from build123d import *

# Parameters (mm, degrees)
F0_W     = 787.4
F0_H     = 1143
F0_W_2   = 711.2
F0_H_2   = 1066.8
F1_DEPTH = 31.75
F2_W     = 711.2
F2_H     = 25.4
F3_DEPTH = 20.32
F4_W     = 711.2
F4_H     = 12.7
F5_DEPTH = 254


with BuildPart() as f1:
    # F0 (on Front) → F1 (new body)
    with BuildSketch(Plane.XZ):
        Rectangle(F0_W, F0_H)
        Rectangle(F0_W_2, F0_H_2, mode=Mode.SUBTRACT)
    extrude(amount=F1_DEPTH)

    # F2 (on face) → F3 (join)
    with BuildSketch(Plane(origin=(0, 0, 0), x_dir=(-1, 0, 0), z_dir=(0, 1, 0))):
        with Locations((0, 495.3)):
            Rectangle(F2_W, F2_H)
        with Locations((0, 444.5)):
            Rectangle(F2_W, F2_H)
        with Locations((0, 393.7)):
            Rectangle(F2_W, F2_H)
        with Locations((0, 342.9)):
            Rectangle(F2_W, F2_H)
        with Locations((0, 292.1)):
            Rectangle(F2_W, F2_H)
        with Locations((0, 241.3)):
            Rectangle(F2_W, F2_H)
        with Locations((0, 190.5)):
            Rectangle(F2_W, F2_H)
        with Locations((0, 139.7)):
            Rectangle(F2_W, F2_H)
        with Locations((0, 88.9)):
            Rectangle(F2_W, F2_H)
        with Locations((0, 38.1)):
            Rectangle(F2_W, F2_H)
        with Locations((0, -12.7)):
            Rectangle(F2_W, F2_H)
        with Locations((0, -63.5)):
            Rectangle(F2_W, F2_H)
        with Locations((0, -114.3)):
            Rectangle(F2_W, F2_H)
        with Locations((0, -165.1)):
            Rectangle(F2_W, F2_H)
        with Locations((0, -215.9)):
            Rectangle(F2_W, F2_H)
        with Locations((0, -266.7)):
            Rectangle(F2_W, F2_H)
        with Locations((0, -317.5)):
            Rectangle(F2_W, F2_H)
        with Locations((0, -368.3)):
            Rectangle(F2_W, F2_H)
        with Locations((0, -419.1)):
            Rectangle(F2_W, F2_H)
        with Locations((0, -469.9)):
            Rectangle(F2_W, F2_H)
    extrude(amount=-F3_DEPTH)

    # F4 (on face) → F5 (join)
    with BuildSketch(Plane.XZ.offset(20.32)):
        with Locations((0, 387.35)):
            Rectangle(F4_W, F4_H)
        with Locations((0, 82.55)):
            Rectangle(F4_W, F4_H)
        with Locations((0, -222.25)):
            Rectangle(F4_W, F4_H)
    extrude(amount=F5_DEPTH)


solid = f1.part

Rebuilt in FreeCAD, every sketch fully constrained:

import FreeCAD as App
import Part
import Sketcher
Q = App.Units.Quantity

doc = App.newDocument("Part")
body = doc.addObject("PartDesign::Body", "Body")

sketch1 = body.newObject("Sketcher::SketchObject", "Sketch")
sketch1.AttachmentSupport = (doc.getObject("XZ_Plane"), [""])
sketch1.MapMode = "FlatFace"
sketch1.addGeometry(Part.LineSegment(App.Vector(-393.7, 571.5, 0), App.Vector(-393.7, -571.5, 0)), False)
sketch1.addGeometry(Part.LineSegment(App.Vector(-393.7, -571.5, 0), App.Vector(393.7, -571.5, 0)), False)
sketch1.addGeometry(Part.LineSegment(App.Vector(393.7, -571.5, 0), App.Vector(393.7, 571.5, 0)), False)
sketch1.addGeometry(Part.LineSegment(App.Vector(393.7, 571.5, 0), App.Vector(-393.7, 571.5, 0)), False)
sketch1.addGeometry(Part.LineSegment(App.Vector(355.6, -533.4, 0), App.Vector(-355.6, -533.4, 0)), False)
sketch1.addGeometry(Part.LineSegment(App.Vector(-355.6, -533.4, 0), App.Vector(-355.6, 533.4, 0)), False)
sketch1.addGeometry(Part.LineSegment(App.Vector(-355.6, 533.4, 0), App.Vector(355.6, 533.4, 0)), False)
sketch1.addGeometry(Part.LineSegment(App.Vector(355.6, 533.4, 0), App.Vector(355.6, -533.4, 0)), False)
sketch1.addConstraint(Sketcher.Constraint("Coincident", 0, 2, 1, 1))
sketch1.addConstraint(Sketcher.Constraint("Coincident", 1, 2, 2, 1))
sketch1.addConstraint(Sketcher.Constraint("Coincident", 2, 2, 3, 1))
sketch1.addConstraint(Sketcher.Constraint("Coincident", 3, 2, 0, 1))
sketch1.addConstraint(Sketcher.Constraint("Coincident", 4, 2, 5, 1))
sketch1.addConstraint(Sketcher.Constraint("Coincident", 5, 2, 6, 1))
sketch1.addConstraint(Sketcher.Constraint("Coincident", 6, 2, 7, 1))
sketch1.addConstraint(Sketcher.Constraint("Coincident", 7, 2, 4, 1))
sketch1.addConstraint(Sketcher.Constraint("Vertical", 0))
sketch1.addConstraint(Sketcher.Constraint("Horizontal", 1))
sketch1.addConstraint(Sketcher.Constraint("Vertical", 2))
sketch1.addConstraint(Sketcher.Constraint("Horizontal", 3))
sketch1.addConstraint(Sketcher.Constraint("Horizontal", 4))
sketch1.addConstraint(Sketcher.Constraint("Vertical", 5))
sketch1.addConstraint(Sketcher.Constraint("Horizontal", 6))
sketch1.addConstraint(Sketcher.Constraint("Vertical", 7))
sketch1.addConstraint(Sketcher.Constraint("Symmetric", 0, 2, 2, 2, -1, 1))
sketch1.addConstraint(Sketcher.Constraint("Symmetric", 4, 2, 6, 2, -1, 1))
sketch1.addConstraint(Sketcher.Constraint("DistanceX", 1, 1, 1, 2, Q("31 in")))
sketch1.addConstraint(Sketcher.Constraint("DistanceX", 4, 2, 4, 1, Q("28 in")))
sketch1.addConstraint(Sketcher.Constraint("DistanceY", 0, 2, 0, 1, Q("45 in")))
sketch1.addConstraint(Sketcher.Constraint("DistanceY", 5, 1, 5, 2, Q("42 in")))
pad1 = body.newObject("PartDesign::Pad", "Pad")
pad1.Profile = sketch1
pad1.Length = Q("1.25 in")

sketch2 = body.newObject("Sketcher::SketchObject", "Sketch001")
sketch2.AttachmentSupport = (doc.getObject("XZ_Plane"), [""])
sketch2.MapMode = "FlatFace"
sketch2.addGeometry(Part.LineSegment(App.Vector(355.6, 508, 0), App.Vector(355.6, 482.6, 0)), False)
sketch2.addGeometry(Part.LineSegment(App.Vector(355.6, 482.6, 0), App.Vector(-355.6, 482.6, 0)), False)
sketch2.addGeometry(Part.LineSegment(App.Vector(-355.6, 482.6, 0), App.Vector(-355.6, 508, 0)), False)
sketch2.addGeometry(Part.LineSegment(App.Vector(-355.6, 508, 0), App.Vector(355.6, 508, 0)), False)
sketch2.addGeometry(Part.LineSegment(App.Vector(355.6, 457.2, 0), App.Vector(355.6, 431.8, 0)), False)
sketch2.addGeometry(Part.LineSegment(App.Vector(355.6, 431.8, 0), App.Vector(-355.6, 431.8, 0)), False)
sketch2.addGeometry(Part.LineSegment(App.Vector(-355.6, 431.8, 0), App.Vector(-355.6, 457.2, 0)), False)
sketch2.addGeometry(Part.LineSegment(App.Vector(-355.6, 457.2, 0), App.Vector(355.6, 457.2, 0)), False)
sketch2.addGeometry(Part.LineSegment(App.Vector(355.6, 406.4, 0), App.Vector(355.6, 381, 0)), False)
sketch2.addGeometry(Part.LineSegment(App.Vector(355.6, 381, 0), App.Vector(-355.6, 381, 0)), False)
sketch2.addGeometry(Part.LineSegment(App.Vector(-355.6, 381, 0), App.Vector(-355.6, 406.4, 0)), False)
sketch2.addGeometry(Part.LineSegment(App.Vector(-355.6, 406.4, 0), App.Vector(355.6, 406.4, 0)), False)
sketch2.addGeometry(Part.LineSegment(App.Vector(355.6, 355.6, 0), App.Vector(355.6, 330.2, 0)), False)
sketch2.addGeometry(Part.LineSegment(App.Vector(355.6, 330.2, 0), App.Vector(-355.6, 330.2, 0)), False)
sketch2.addGeometry(Part.LineSegment(App.Vector(-355.6, 330.2, 0), App.Vector(-355.6, 355.6, 0)), False)
sketch2.addGeometry(Part.LineSegment(App.Vector(-355.6, 355.6, 0), App.Vector(355.6, 355.6, 0)), False)
sketch2.addGeometry(Part.LineSegment(App.Vector(355.6, 304.8, 0), App.Vector(355.6, 279.4, 0)), False)
sketch2.addGeometry(Part.LineSegment(App.Vector(355.6, 279.4, 0), App.Vector(-355.6, 279.4, 0)), False)
sketch2.addGeometry(Part.LineSegment(App.Vector(-355.6, 279.4, 0), App.Vector(-355.6, 304.8, 0)), False)
sketch2.addGeometry(Part.LineSegment(App.Vector(-355.6, 304.8, 0), App.Vector(355.6, 304.8, 0)), False)
sketch2.addGeometry(Part.LineSegment(App.Vector(355.6, 254, 0), App.Vector(355.6, 228.6, 0)), False)
sketch2.addGeometry(Part.LineSegment(App.Vector(355.6, 228.6, 0), App.Vector(-355.6, 228.6, 0)), False)
sketch2.addGeometry(Part.LineSegment(App.Vector(-355.6, 228.6, 0), App.Vector(-355.6, 254, 0)), False)
sketch2.addGeometry(Part.LineSegment(App.Vector(-355.6, 254, 0), App.Vector(355.6, 254, 0)), False)
sketch2.addGeometry(Part.LineSegment(App.Vector(355.6, 203.2, 0), App.Vector(355.6, 177.8, 0)), False)
sketch2.addGeometry(Part.LineSegment(App.Vector(355.6, 177.8, 0), App.Vector(-355.6, 177.8, 0)), False)
sketch2.addGeometry(Part.LineSegment(App.Vector(-355.6, 177.8, 0), App.Vector(-355.6, 203.2, 0)), False)
sketch2.addGeometry(Part.LineSegment(App.Vector(-355.6, 203.2, 0), App.Vector(355.6, 203.2, 0)), False)
sketch2.addGeometry(Part.LineSegment(App.Vector(355.6, 152.4, 0), App.Vector(355.6, 127, 0)), False)
sketch2.addGeometry(Part.LineSegment(App.Vector(355.6, 127, 0), App.Vector(-355.6, 127, 0)), False)
sketch2.addGeometry(Part.LineSegment(App.Vector(-355.6, 127, 0), App.Vector(-355.6, 152.4, 0)), False)
sketch2.addGeometry(Part.LineSegment(App.Vector(-355.6, 152.4, 0), App.Vector(355.6, 152.4, 0)), False)
sketch2.addGeometry(Part.LineSegment(App.Vector(355.6, 101.6, 0), App.Vector(355.6, 76.2, 0)), False)
sketch2.addGeometry(Part.LineSegment(App.Vector(355.6, 76.2, 0), App.Vector(-355.6, 76.2, 0)), False)
sketch2.addGeometry(Part.LineSegment(App.Vector(-355.6, 76.2, 0), App.Vector(-355.6, 101.6, 0)), False)
sketch2.addGeometry(Part.LineSegment(App.Vector(-355.6, 101.6, 0), App.Vector(355.6, 101.6, 0)), False)
sketch2.addGeometry(Part.LineSegment(App.Vector(355.6, 50.8, 0), App.Vector(355.6, 25.4, 0)), False)
sketch2.addGeometry(Part.LineSegment(App.Vector(355.6, 25.4, 0), App.Vector(-355.6, 25.4, 0)), False)
sketch2.addGeometry(Part.LineSegment(App.Vector(-355.6, 25.4, 0), App.Vector(-355.6, 50.8, 0)), False)
sketch2.addGeometry(Part.LineSegment(App.Vector(-355.6, 50.8, 0), App.Vector(355.6, 50.8, 0)), False)
sketch2.addGeometry(Part.LineSegment(App.Vector(355.6, 0, 0), App.Vector(355.6, -25.4, 0)), False)
sketch2.addGeometry(Part.LineSegment(App.Vector(355.6, -25.4, 0), App.Vector(-355.6, -25.4, 0)), False)
sketch2.addGeometry(Part.LineSegment(App.Vector(-355.6, -25.4, 0), App.Vector(-355.6, 0, 0)), False)
sketch2.addGeometry(Part.LineSegment(App.Vector(-355.6, 0, 0), App.Vector(355.6, 0, 0)), False)
sketch2.addGeometry(Part.LineSegment(App.Vector(355.6, -50.8, 0), App.Vector(355.6, -76.2, 0)), False)
sketch2.addGeometry(Part.LineSegment(App.Vector(355.6, -76.2, 0), App.Vector(-355.6, -76.2, 0)), False)
sketch2.addGeometry(Part.LineSegment(App.Vector(-355.6, -76.2, 0), App.Vector(-355.6, -50.8, 0)), False)
sketch2.addGeometry(Part.LineSegment(App.Vector(-355.6, -50.8, 0), App.Vector(355.6, -50.8, 0)), False)
sketch2.addGeometry(Part.LineSegment(App.Vector(355.6, -101.6, 0), App.Vector(355.6, -127, 0)), False)
sketch2.addGeometry(Part.LineSegment(App.Vector(355.6, -127, 0), App.Vector(-355.6, -127, 0)), False)
sketch2.addGeometry(Part.LineSegment(App.Vector(-355.6, -127, 0), App.Vector(-355.6, -101.6, 0)), False)
sketch2.addGeometry(Part.LineSegment(App.Vector(-355.6, -101.6, 0), App.Vector(355.6, -101.6, 0)), False)
sketch2.addGeometry(Part.LineSegment(App.Vector(355.6, -152.4, 0), App.Vector(355.6, -177.8, 0)), False)
sketch2.addGeometry(Part.LineSegment(App.Vector(355.6, -177.8, 0), App.Vector(-355.6, -177.8, 0)), False)
sketch2.addGeometry(Part.LineSegment(App.Vector(-355.6, -177.8, 0), App.Vector(-355.6, -152.4, 0)), False)
sketch2.addGeometry(Part.LineSegment(App.Vector(-355.6, -152.4, 0), App.Vector(355.6, -152.4, 0)), False)
sketch2.addGeometry(Part.LineSegment(App.Vector(355.6, -203.2, 0), App.Vector(355.6, -228.6, 0)), False)
sketch2.addGeometry(Part.LineSegment(App.Vector(355.6, -228.6, 0), App.Vector(-355.6, -228.6, 0)), False)
sketch2.addGeometry(Part.LineSegment(App.Vector(-355.6, -228.6, 0), App.Vector(-355.6, -203.2, 0)), False)
sketch2.addGeometry(Part.LineSegment(App.Vector(-355.6, -203.2, 0), App.Vector(355.6, -203.2, 0)), False)
sketch2.addGeometry(Part.LineSegment(App.Vector(355.6, -254, 0), App.Vector(355.6, -279.4, 0)), False)
sketch2.addGeometry(Part.LineSegment(App.Vector(355.6, -279.4, 0), App.Vector(-355.6, -279.4, 0)), False)
sketch2.addGeometry(Part.LineSegment(App.Vector(-355.6, -279.4, 0), App.Vector(-355.6, -254, 0)), False)
sketch2.addGeometry(Part.LineSegment(App.Vector(-355.6, -254, 0), App.Vector(355.6, -254, 0)), False)
sketch2.addGeometry(Part.LineSegment(App.Vector(355.6, -304.8, 0), App.Vector(355.6, -330.2, 0)), False)
sketch2.addGeometry(Part.LineSegment(App.Vector(355.6, -330.2, 0), App.Vector(-355.6, -330.2, 0)), False)
sketch2.addGeometry(Part.LineSegment(App.Vector(-355.6, -330.2, 0), App.Vector(-355.6, -304.8, 0)), False)
sketch2.addGeometry(Part.LineSegment(App.Vector(-355.6, -304.8, 0), App.Vector(355.6, -304.8, 0)), False)
sketch2.addGeometry(Part.LineSegment(App.Vector(355.6, -355.6, 0), App.Vector(355.6, -381, 0)), False)
sketch2.addGeometry(Part.LineSegment(App.Vector(355.6, -381, 0), App.Vector(-355.6, -381, 0)), False)
sketch2.addGeometry(Part.LineSegment(App.Vector(-355.6, -381, 0), App.Vector(-355.6, -355.6, 0)), False)
sketch2.addGeometry(Part.LineSegment(App.Vector(-355.6, -355.6, 0), App.Vector(355.6, -355.6, 0)), False)
sketch2.addGeometry(Part.LineSegment(App.Vector(355.6, -406.4, 0), App.Vector(355.6, -431.8, 0)), False)
sketch2.addGeometry(Part.LineSegment(App.Vector(355.6, -431.8, 0), App.Vector(-355.6, -431.8, 0)), False)
sketch2.addGeometry(Part.LineSegment(App.Vector(-355.6, -431.8, 0), App.Vector(-355.6, -406.4, 0)), False)
sketch2.addGeometry(Part.LineSegment(App.Vector(-355.6, -406.4, 0), App.Vector(355.6, -406.4, 0)), False)
sketch2.addGeometry(Part.LineSegment(App.Vector(355.6, -457.2, 0), App.Vector(355.6, -482.6, 0)), False)
sketch2.addGeometry(Part.LineSegment(App.Vector(355.6, -482.6, 0), App.Vector(-355.6, -482.6, 0)), False)
sketch2.addGeometry(Part.LineSegment(App.Vector(-355.6, -482.6, 0), App.Vector(-355.6, -457.2, 0)), False)
sketch2.addGeometry(Part.LineSegment(App.Vector(-355.6, -457.2, 0), App.Vector(355.6, -457.2, 0)), False)
sketch2.addConstraint(Sketcher.Constraint("Coincident", 0, 2, 1, 1))
sketch2.addConstraint(Sketcher.Constraint("Coincident", 1, 2, 2, 1))
sketch2.addConstraint(Sketcher.Constraint("Coincident", 2, 2, 3, 1))
sketch2.addConstraint(Sketcher.Constraint("Coincident", 3, 2, 0, 1))
sketch2.addConstraint(Sketcher.Constraint("Coincident", 4, 2, 5, 1))
sketch2.addConstraint(Sketcher.Constraint("Coincident", 5, 2, 6, 1))
sketch2.addConstraint(Sketcher.Constraint("Coincident", 6, 2, 7, 1))
sketch2.addConstraint(Sketcher.Constraint("Coincident", 7, 2, 4, 1))
sketch2.addConstraint(Sketcher.Constraint("Coincident", 8, 2, 9, 1))
sketch2.addConstraint(Sketcher.Constraint("Coincident", 9, 2, 10, 1))
sketch2.addConstraint(Sketcher.Constraint("Coincident", 10, 2, 11, 1))
sketch2.addConstraint(Sketcher.Constraint("Coincident", 11, 2, 8, 1))
sketch2.addConstraint(Sketcher.Constraint("Coincident", 12, 2, 13, 1))
sketch2.addConstraint(Sketcher.Constraint("Coincident", 13, 2, 14, 1))
sketch2.addConstraint(Sketcher.Constraint("Coincident", 14, 2, 15, 1))
sketch2.addConstraint(Sketcher.Constraint("Coincident", 15, 2, 12, 1))
sketch2.addConstraint(Sketcher.Constraint("Coincident", 16, 2, 17, 1))
sketch2.addConstraint(Sketcher.Constraint("Coincident", 17, 2, 18, 1))
sketch2.addConstraint(Sketcher.Constraint("Coincident", 18, 2, 19, 1))
sketch2.addConstraint(Sketcher.Constraint("Coincident", 19, 2, 16, 1))
sketch2.addConstraint(Sketcher.Constraint("Coincident", 20, 2, 21, 1))
sketch2.addConstraint(Sketcher.Constraint("Coincident", 21, 2, 22, 1))
sketch2.addConstraint(Sketcher.Constraint("Coincident", 22, 2, 23, 1))
sketch2.addConstraint(Sketcher.Constraint("Coincident", 23, 2, 20, 1))
sketch2.addConstraint(Sketcher.Constraint("Coincident", 24, 2, 25, 1))
sketch2.addConstraint(Sketcher.Constraint("Coincident", 25, 2, 26, 1))
sketch2.addConstraint(Sketcher.Constraint("Coincident", 26, 2, 27, 1))
sketch2.addConstraint(Sketcher.Constraint("Coincident", 27, 2, 24, 1))
sketch2.addConstraint(Sketcher.Constraint("Coincident", 28, 2, 29, 1))
sketch2.addConstraint(Sketcher.Constraint("Coincident", 29, 2, 30, 1))
sketch2.addConstraint(Sketcher.Constraint("Coincident", 30, 2, 31, 1))
sketch2.addConstraint(Sketcher.Constraint("Coincident", 31, 2, 28, 1))
sketch2.addConstraint(Sketcher.Constraint("Coincident", 32, 2, 33, 1))
sketch2.addConstraint(Sketcher.Constraint("Coincident", 33, 2, 34, 1))
sketch2.addConstraint(Sketcher.Constraint("Coincident", 34, 2, 35, 1))
sketch2.addConstraint(Sketcher.Constraint("Coincident", 35, 2, 32, 1))
sketch2.addConstraint(Sketcher.Constraint("Coincident", 36, 2, 37, 1))
sketch2.addConstraint(Sketcher.Constraint("Coincident", 37, 2, 38, 1))
sketch2.addConstraint(Sketcher.Constraint("Coincident", 38, 2, 39, 1))
sketch2.addConstraint(Sketcher.Constraint("Coincident", 39, 2, 36, 1))
sketch2.addConstraint(Sketcher.Constraint("Coincident", 40, 2, 41, 1))
sketch2.addConstraint(Sketcher.Constraint("Coincident", 41, 2, 42, 1))
sketch2.addConstraint(Sketcher.Constraint("Coincident", 42, 2, 43, 1))
sketch2.addConstraint(Sketcher.Constraint("Coincident", 43, 2, 40, 1))
sketch2.addConstraint(Sketcher.Constraint("Coincident", 44, 2, 45, 1))
sketch2.addConstraint(Sketcher.Constraint("Coincident", 45, 2, 46, 1))
sketch2.addConstraint(Sketcher.Constraint("Coincident", 46, 2, 47, 1))
sketch2.addConstraint(Sketcher.Constraint("Coincident", 47, 2, 44, 1))
sketch2.addConstraint(Sketcher.Constraint("Coincident", 48, 2, 49, 1))
sketch2.addConstraint(Sketcher.Constraint("Coincident", 49, 2, 50, 1))
sketch2.addConstraint(Sketcher.Constraint("Coincident", 50, 2, 51, 1))
sketch2.addConstraint(Sketcher.Constraint("Coincident", 51, 2, 48, 1))
sketch2.addConstraint(Sketcher.Constraint("Coincident", 52, 2, 53, 1))
sketch2.addConstraint(Sketcher.Constraint("Coincident", 53, 2, 54, 1))
sketch2.addConstraint(Sketcher.Constraint("Coincident", 54, 2, 55, 1))
sketch2.addConstraint(Sketcher.Constraint("Coincident", 55, 2, 52, 1))
sketch2.addConstraint(Sketcher.Constraint("Coincident", 56, 2, 57, 1))
sketch2.addConstraint(Sketcher.Constraint("Coincident", 57, 2, 58, 1))
sketch2.addConstraint(Sketcher.Constraint("Coincident", 58, 2, 59, 1))
sketch2.addConstraint(Sketcher.Constraint("Coincident", 59, 2, 56, 1))
sketch2.addConstraint(Sketcher.Constraint("Coincident", 60, 2, 61, 1))
sketch2.addConstraint(Sketcher.Constraint("Coincident", 61, 2, 62, 1))
sketch2.addConstraint(Sketcher.Constraint("Coincident", 62, 2, 63, 1))
sketch2.addConstraint(Sketcher.Constraint("Coincident", 63, 2, 60, 1))
sketch2.addConstraint(Sketcher.Constraint("Coincident", 64, 2, 65, 1))
sketch2.addConstraint(Sketcher.Constraint("Coincident", 65, 2, 66, 1))
sketch2.addConstraint(Sketcher.Constraint("Coincident", 66, 2, 67, 1))
sketch2.addConstraint(Sketcher.Constraint("Coincident", 67, 2, 64, 1))
sketch2.addConstraint(Sketcher.Constraint("Coincident", 68, 2, 69, 1))
sketch2.addConstraint(Sketcher.Constraint("Coincident", 69, 2, 70, 1))
sketch2.addConstraint(Sketcher.Constraint("Coincident", 70, 2, 71, 1))
sketch2.addConstraint(Sketcher.Constraint("Coincident", 71, 2, 68, 1))
sketch2.addConstraint(Sketcher.Constraint("Coincident", 72, 2, 73, 1))
sketch2.addConstraint(Sketcher.Constraint("Coincident", 73, 2, 74, 1))
sketch2.addConstraint(Sketcher.Constraint("Coincident", 74, 2, 75, 1))
sketch2.addConstraint(Sketcher.Constraint("Coincident", 75, 2, 72, 1))
sketch2.addConstraint(Sketcher.Constraint("Coincident", 76, 2, 77, 1))
sketch2.addConstraint(Sketcher.Constraint("Coincident", 77, 2, 78, 1))
sketch2.addConstraint(Sketcher.Constraint("Coincident", 78, 2, 79, 1))
sketch2.addConstraint(Sketcher.Constraint("Coincident", 79, 2, 76, 1))
sketch2.addConstraint(Sketcher.Constraint("Vertical", 0))
sketch2.addConstraint(Sketcher.Constraint("Horizontal", 1))
sketch2.addConstraint(Sketcher.Constraint("Vertical", 2))
sketch2.addConstraint(Sketcher.Constraint("Horizontal", 3))
sketch2.addConstraint(Sketcher.Constraint("Vertical", 4))
sketch2.addConstraint(Sketcher.Constraint("Horizontal", 5))
sketch2.addConstraint(Sketcher.Constraint("Vertical", 6))
sketch2.addConstraint(Sketcher.Constraint("Horizontal", 7))
sketch2.addConstraint(Sketcher.Constraint("Vertical", 8))
sketch2.addConstraint(Sketcher.Constraint("Horizontal", 9))
sketch2.addConstraint(Sketcher.Constraint("Vertical", 10))
sketch2.addConstraint(Sketcher.Constraint("Horizontal", 11))
sketch2.addConstraint(Sketcher.Constraint("Vertical", 12))
sketch2.addConstraint(Sketcher.Constraint("Horizontal", 13))
sketch2.addConstraint(Sketcher.Constraint("Vertical", 14))
sketch2.addConstraint(Sketcher.Constraint("Horizontal", 15))
sketch2.addConstraint(Sketcher.Constraint("Vertical", 16))
sketch2.addConstraint(Sketcher.Constraint("Horizontal", 17))
sketch2.addConstraint(Sketcher.Constraint("Vertical", 18))
sketch2.addConstraint(Sketcher.Constraint("Horizontal", 19))
sketch2.addConstraint(Sketcher.Constraint("Vertical", 20))
sketch2.addConstraint(Sketcher.Constraint("Horizontal", 21))
sketch2.addConstraint(Sketcher.Constraint("Vertical", 22))
sketch2.addConstraint(Sketcher.Constraint("Horizontal", 23))
sketch2.addConstraint(Sketcher.Constraint("Vertical", 24))
sketch2.addConstraint(Sketcher.Constraint("Horizontal", 25))
sketch2.addConstraint(Sketcher.Constraint("Vertical", 26))
sketch2.addConstraint(Sketcher.Constraint("Horizontal", 27))
sketch2.addConstraint(Sketcher.Constraint("Vertical", 28))
sketch2.addConstraint(Sketcher.Constraint("Horizontal", 29))
sketch2.addConstraint(Sketcher.Constraint("Vertical", 30))
sketch2.addConstraint(Sketcher.Constraint("Horizontal", 31))
sketch2.addConstraint(Sketcher.Constraint("Vertical", 32))
sketch2.addConstraint(Sketcher.Constraint("Horizontal", 33))
sketch2.addConstraint(Sketcher.Constraint("Vertical", 34))
sketch2.addConstraint(Sketcher.Constraint("Horizontal", 35))
sketch2.addConstraint(Sketcher.Constraint("Vertical", 36))
sketch2.addConstraint(Sketcher.Constraint("Horizontal", 37))
sketch2.addConstraint(Sketcher.Constraint("Vertical", 38))
sketch2.addConstraint(Sketcher.Constraint("Horizontal", 39))
sketch2.addConstraint(Sketcher.Constraint("Vertical", 40))
sketch2.addConstraint(Sketcher.Constraint("Horizontal", 41))
sketch2.addConstraint(Sketcher.Constraint("Vertical", 42))
sketch2.addConstraint(Sketcher.Constraint("Horizontal", 43))
sketch2.addConstraint(Sketcher.Constraint("Vertical", 44))
sketch2.addConstraint(Sketcher.Constraint("Horizontal", 45))
sketch2.addConstraint(Sketcher.Constraint("Vertical", 46))
sketch2.addConstraint(Sketcher.Constraint("Horizontal", 47))
sketch2.addConstraint(Sketcher.Constraint("Vertical", 48))
sketch2.addConstraint(Sketcher.Constraint("Horizontal", 49))
sketch2.addConstraint(Sketcher.Constraint("Vertical", 50))
sketch2.addConstraint(Sketcher.Constraint("Horizontal", 51))
sketch2.addConstraint(Sketcher.Constraint("Vertical", 52))
sketch2.addConstraint(Sketcher.Constraint("Horizontal", 53))
sketch2.addConstraint(Sketcher.Constraint("Vertical", 54))
sketch2.addConstraint(Sketcher.Constraint("Horizontal", 55))
sketch2.addConstraint(Sketcher.Constraint("Vertical", 56))
sketch2.addConstraint(Sketcher.Constraint("Horizontal", 57))
sketch2.addConstraint(Sketcher.Constraint("Vertical", 58))
sketch2.addConstraint(Sketcher.Constraint("Horizontal", 59))
sketch2.addConstraint(Sketcher.Constraint("Vertical", 60))
sketch2.addConstraint(Sketcher.Constraint("Horizontal", 61))
sketch2.addConstraint(Sketcher.Constraint("Vertical", 62))
sketch2.addConstraint(Sketcher.Constraint("Horizontal", 63))
sketch2.addConstraint(Sketcher.Constraint("Vertical", 64))
sketch2.addConstraint(Sketcher.Constraint("Horizontal", 65))
sketch2.addConstraint(Sketcher.Constraint("Vertical", 66))
sketch2.addConstraint(Sketcher.Constraint("Horizontal", 67))
sketch2.addConstraint(Sketcher.Constraint("Vertical", 68))
sketch2.addConstraint(Sketcher.Constraint("Horizontal", 69))
sketch2.addConstraint(Sketcher.Constraint("Vertical", 70))
sketch2.addConstraint(Sketcher.Constraint("Horizontal", 71))
sketch2.addConstraint(Sketcher.Constraint("Vertical", 72))
sketch2.addConstraint(Sketcher.Constraint("Horizontal", 73))
sketch2.addConstraint(Sketcher.Constraint("Vertical", 74))
sketch2.addConstraint(Sketcher.Constraint("Horizontal", 75))
sketch2.addConstraint(Sketcher.Constraint("Vertical", 76))
sketch2.addConstraint(Sketcher.Constraint("Horizontal", 77))
sketch2.addConstraint(Sketcher.Constraint("Vertical", 78))
sketch2.addConstraint(Sketcher.Constraint("Horizontal", 79))
sketch2.addConstraint(Sketcher.Constraint("Symmetric", 37, 2, 40, 2, -1, 1))
sketch2.addConstraint(Sketcher.Constraint("Symmetric", 42, 2, 43, 2, -1, 1))
sketch2.addConstraint(Sketcher.Constraint("Symmetric", 33, 2, 44, 2, -1, 1))
sketch2.addConstraint(Sketcher.Constraint("Symmetric", 39, 2, 46, 2, -1, 1))
sketch2.addConstraint(Sketcher.Constraint("Symmetric", 29, 2, 48, 2, -1, 1))
sketch2.addConstraint(Sketcher.Constraint("Symmetric", 35, 2, 50, 2, -1, 1))
sketch2.addConstraint(Sketcher.Constraint("Symmetric", 25, 2, 52, 2, -1, 1))
sketch2.addConstraint(Sketcher.Constraint("Symmetric", 31, 2, 54, 2, -1, 1))
sketch2.addConstraint(Sketcher.Constraint("Symmetric", 21, 2, 56, 2, -1, 1))
sketch2.addConstraint(Sketcher.Constraint("Symmetric", 27, 2, 58, 2, -1, 1))
sketch2.addConstraint(Sketcher.Constraint("Symmetric", 17, 2, 60, 2, -1, 1))
sketch2.addConstraint(Sketcher.Constraint("Symmetric", 23, 2, 62, 2, -1, 1))
sketch2.addConstraint(Sketcher.Constraint("Symmetric", 13, 2, 64, 2, -1, 1))
sketch2.addConstraint(Sketcher.Constraint("Symmetric", 19, 2, 66, 2, -1, 1))
sketch2.addConstraint(Sketcher.Constraint("Symmetric", 9, 2, 68, 2, -1, 1))
sketch2.addConstraint(Sketcher.Constraint("Symmetric", 15, 2, 70, 2, -1, 1))
sketch2.addConstraint(Sketcher.Constraint("Symmetric", 5, 2, 72, 2, -1, 1))
sketch2.addConstraint(Sketcher.Constraint("Symmetric", 11, 2, 74, 2, -1, 1))
sketch2.addConstraint(Sketcher.Constraint("Symmetric", 1, 2, 76, 2, -1, 1))
sketch2.addConstraint(Sketcher.Constraint("Symmetric", 7, 2, 78, 2, -1, 1))
sketch2.addConstraint(Sketcher.Constraint("Vertical", 3, 2, 4, 2))
sketch2.addConstraint(Sketcher.Constraint("Vertical", 2, 2, 5, 2))
sketch2.addConstraint(Sketcher.Constraint("Vertical", 7, 2, 8, 2))
sketch2.addConstraint(Sketcher.Constraint("Vertical", 6, 2, 9, 2))
sketch2.addConstraint(Sketcher.Constraint("Vertical", 11, 2, 12, 2))
sketch2.addConstraint(Sketcher.Constraint("Vertical", 10, 2, 13, 2))
sketch2.addConstraint(Sketcher.Constraint("Vertical", 15, 2, 16, 2))
sketch2.addConstraint(Sketcher.Constraint("Vertical", 14, 2, 17, 2))
sketch2.addConstraint(Sketcher.Constraint("Vertical", 19, 2, 20, 2))
sketch2.addConstraint(Sketcher.Constraint("Vertical", 18, 2, 21, 2))
sketch2.addConstraint(Sketcher.Constraint("Vertical", 23, 2, 24, 2))
sketch2.addConstraint(Sketcher.Constraint("Vertical", 22, 2, 25, 2))
sketch2.addConstraint(Sketcher.Constraint("Vertical", 27, 2, 28, 2))
sketch2.addConstraint(Sketcher.Constraint("Vertical", 26, 2, 29, 2))
sketch2.addConstraint(Sketcher.Constraint("Vertical", 31, 2, 32, 2))
sketch2.addConstraint(Sketcher.Constraint("Vertical", 30, 2, 33, 2))
sketch2.addConstraint(Sketcher.Constraint("Vertical", 35, 2, 36, 2))
sketch2.addConstraint(Sketcher.Constraint("Vertical", 34, 2, 37, 2))
sketch2.addConstraint(Sketcher.Constraint("Vertical", 39, 2, 40, 2))
sketch2.addConstraint(Sketcher.Constraint("Equal", 2, 4))
sketch2.addConstraint(Sketcher.Constraint("Equal", 6, 8))
sketch2.addConstraint(Sketcher.Constraint("Equal", 10, 12))
sketch2.addConstraint(Sketcher.Constraint("Equal", 14, 16))
sketch2.addConstraint(Sketcher.Constraint("Equal", 18, 20))
sketch2.addConstraint(Sketcher.Constraint("Equal", 22, 24))
sketch2.addConstraint(Sketcher.Constraint("Equal", 26, 28))
sketch2.addConstraint(Sketcher.Constraint("Equal", 30, 32))
sketch2.addConstraint(Sketcher.Constraint("Equal", 34, 36))
sketch2.addConstraint(Sketcher.Constraint("Equal", 38, 40))
sketch2.addConstraint(Sketcher.Constraint("Equal", 42, 44))
sketch2.addConstraint(Sketcher.Constraint("Equal", 46, 48))
sketch2.addConstraint(Sketcher.Constraint("Equal", 50, 52))
sketch2.addConstraint(Sketcher.Constraint("Equal", 54, 56))
sketch2.addConstraint(Sketcher.Constraint("Equal", 58, 60))
sketch2.addConstraint(Sketcher.Constraint("Equal", 62, 64))
sketch2.addConstraint(Sketcher.Constraint("Equal", 66, 68))
sketch2.addConstraint(Sketcher.Constraint("Equal", 70, 72))
sketch2.addConstraint(Sketcher.Constraint("Equal", 74, 76))
sketch2.addConstraint(Sketcher.Constraint("DistanceX", 1, 2, 1, 1, Q("28 in")))
sketch2.addConstraint(Sketcher.Constraint("DistanceY", 0, 2, 0, 1, Q("1 in")))
pad2 = body.newObject("PartDesign::Pad", "Pad001")
pad2.Profile = sketch2
pad2.Length = Q("0.8 in")

sketch3 = body.newObject("Sketcher::SketchObject", "Sketch002")
sketch3.AttachmentSupport = (doc.getObject("XZ_Plane"), [""])
sketch3.MapMode = "FlatFace"
sketch3.AttachmentOffset = App.Placement(App.Vector(0, 0, 0.8 * 25.4), App.Rotation())
sketch3.addGeometry(Part.LineSegment(App.Vector(-355.6, 393.7, 0), App.Vector(-355.6, 381, 0)), False)
sketch3.addGeometry(Part.LineSegment(App.Vector(-355.6, 381, 0), App.Vector(355.6, 381, 0)), False)
sketch3.addGeometry(Part.LineSegment(App.Vector(355.6, 381, 0), App.Vector(355.6, 393.7, 0)), False)
sketch3.addGeometry(Part.LineSegment(App.Vector(355.6, 393.7, 0), App.Vector(-355.6, 393.7, 0)), False)
sketch3.addGeometry(Part.LineSegment(App.Vector(-355.6, 88.9, 0), App.Vector(-355.6, 76.2, 0)), False)
sketch3.addGeometry(Part.LineSegment(App.Vector(-355.6, 76.2, 0), App.Vector(355.6, 76.2, 0)), False)
sketch3.addGeometry(Part.LineSegment(App.Vector(355.6, 76.2, 0), App.Vector(355.6, 88.9, 0)), False)
sketch3.addGeometry(Part.LineSegment(App.Vector(355.6, 88.9, 0), App.Vector(-355.6, 88.9, 0)), False)
sketch3.addGeometry(Part.LineSegment(App.Vector(-355.6, -215.9, 0), App.Vector(-355.6, -228.6, 0)), False)
sketch3.addGeometry(Part.LineSegment(App.Vector(-355.6, -228.6, 0), App.Vector(355.6, -228.6, 0)), False)
sketch3.addGeometry(Part.LineSegment(App.Vector(355.6, -228.6, 0), App.Vector(355.6, -215.9, 0)), False)
sketch3.addGeometry(Part.LineSegment(App.Vector(355.6, -215.9, 0), App.Vector(-355.6, -215.9, 0)), False)
sketch3.addConstraint(Sketcher.Constraint("Coincident", 0, 2, 1, 1))
sketch3.addConstraint(Sketcher.Constraint("Coincident", 1, 2, 2, 1))
sketch3.addConstraint(Sketcher.Constraint("Coincident", 2, 2, 3, 1))
sketch3.addConstraint(Sketcher.Constraint("Coincident", 3, 2, 0, 1))
sketch3.addConstraint(Sketcher.Constraint("Coincident", 4, 2, 5, 1))
sketch3.addConstraint(Sketcher.Constraint("Coincident", 5, 2, 6, 1))
sketch3.addConstraint(Sketcher.Constraint("Coincident", 6, 2, 7, 1))
sketch3.addConstraint(Sketcher.Constraint("Coincident", 7, 2, 4, 1))
sketch3.addConstraint(Sketcher.Constraint("Coincident", 8, 2, 9, 1))
sketch3.addConstraint(Sketcher.Constraint("Coincident", 9, 2, 10, 1))
sketch3.addConstraint(Sketcher.Constraint("Coincident", 10, 2, 11, 1))
sketch3.addConstraint(Sketcher.Constraint("Coincident", 11, 2, 8, 1))
sketch3.addConstraint(Sketcher.Constraint("Vertical", 0))
sketch3.addConstraint(Sketcher.Constraint("Horizontal", 1))
sketch3.addConstraint(Sketcher.Constraint("Vertical", 2))
sketch3.addConstraint(Sketcher.Constraint("Horizontal", 3))
sketch3.addConstraint(Sketcher.Constraint("Vertical", 4))
sketch3.addConstraint(Sketcher.Constraint("Horizontal", 5))
sketch3.addConstraint(Sketcher.Constraint("Vertical", 6))
sketch3.addConstraint(Sketcher.Constraint("Horizontal", 7))
sketch3.addConstraint(Sketcher.Constraint("Vertical", 8))
sketch3.addConstraint(Sketcher.Constraint("Horizontal", 9))
sketch3.addConstraint(Sketcher.Constraint("Vertical", 10))
sketch3.addConstraint(Sketcher.Constraint("Horizontal", 11))
sketch3.addConstraint(Sketcher.Constraint("Vertical", 3, 2, 4, 2))
sketch3.addConstraint(Sketcher.Constraint("Vertical", 2, 2, 5, 2))
sketch3.addConstraint(Sketcher.Constraint("Vertical", 7, 2, 8, 2))
sketch3.addConstraint(Sketcher.Constraint("Vertical", 6, 2, 9, 2))
sketch3.addConstraint(Sketcher.Constraint("Equal", 2, 4))
sketch3.addConstraint(Sketcher.Constraint("Equal", 6, 8))
sketch3.addConstraint(Sketcher.Constraint("DistanceX", 1, 1, 1, 2, Q("28 in")))
sketch3.addConstraint(Sketcher.Constraint("DistanceY", 0, 2, 0, 1, Q("0.5 in")))
sketch3.addConstraint(Sketcher.Constraint("DistanceX", 0, 2, -1, 1, Q("14 in")))
sketch3.addConstraint(Sketcher.Constraint("DistanceY", -1, 1, 0, 2, Q("15 in")))
sketch3.addConstraint(Sketcher.Constraint("DistanceY", -1, 1, 4, 2, Q("3 in")))
sketch3.addConstraint(Sketcher.Constraint("DistanceY", 8, 2, -1, 1, Q("9 in")))
pad3 = body.newObject("PartDesign::Pad", "Pad002")
pad3.Profile = sketch3
pad3.Length = Q("10 in")

doc.recompute()
